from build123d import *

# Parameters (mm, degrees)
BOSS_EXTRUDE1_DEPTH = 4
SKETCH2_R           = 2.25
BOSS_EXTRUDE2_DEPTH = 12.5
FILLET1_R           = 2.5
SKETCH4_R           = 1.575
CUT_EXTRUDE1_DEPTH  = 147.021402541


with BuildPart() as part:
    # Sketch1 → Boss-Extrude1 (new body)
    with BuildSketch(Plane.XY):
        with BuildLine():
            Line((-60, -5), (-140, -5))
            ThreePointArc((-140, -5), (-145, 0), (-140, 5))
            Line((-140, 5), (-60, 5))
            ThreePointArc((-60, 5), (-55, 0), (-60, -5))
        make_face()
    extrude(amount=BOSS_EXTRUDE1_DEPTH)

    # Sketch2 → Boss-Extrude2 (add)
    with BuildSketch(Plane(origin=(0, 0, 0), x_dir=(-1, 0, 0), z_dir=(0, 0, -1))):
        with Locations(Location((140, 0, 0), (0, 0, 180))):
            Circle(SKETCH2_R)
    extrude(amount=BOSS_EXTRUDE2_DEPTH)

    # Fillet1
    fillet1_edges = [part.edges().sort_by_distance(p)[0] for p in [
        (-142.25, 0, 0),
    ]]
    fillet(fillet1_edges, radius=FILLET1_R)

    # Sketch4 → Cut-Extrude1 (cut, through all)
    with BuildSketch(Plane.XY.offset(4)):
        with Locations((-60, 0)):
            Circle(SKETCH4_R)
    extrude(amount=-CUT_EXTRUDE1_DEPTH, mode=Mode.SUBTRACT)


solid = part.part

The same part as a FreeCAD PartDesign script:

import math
import FreeCAD as App
import Part
import Sketcher


def edges_at(feature, points):
    """Names of the edges that pass closest to the given points."""
    edges = feature.Shape.Edges
    near = lambda p: min(range(len(edges)), key=lambda i: edges[i].distToShape(Part.Vertex(*p))[0])
    return sorted({f"Edge{near(p) + 1}" for p in points})

doc = App.newDocument("Part")
body = doc.addObject("PartDesign::Body", "Body")

# Sketch on XY plane
sketch1 = body.newObject("Sketcher::SketchObject", "Sketch")
sketch1.AttachmentSupport = (doc.getObject("XY_Plane"), [""])
sketch1.MapMode = "FlatFace"
sketch1.addGeometry(Part.LineSegment(App.Vector(-140, -5, 0), App.Vector(-60, -5, 0)), False)
sketch1.addGeometry(Part.ArcOfCircle(Part.Circle(App.Vector(-60, 0, 0), App.Vector(0, 0, 1), 5), math.radians(-90), math.radians(90)), False)
sketch1.addGeometry(Part.LineSegment(App.Vector(-60, 5, 0), App.Vector(-140, 5, 0)), False)
sketch1.addGeometry(Part.ArcOfCircle(Part.Circle(App.Vector(-140, 0, 0), App.Vector(0, 0, 1), 5), math.radians(90), math.radians(270)), False)
sketch1.addConstraint(Sketcher.Constraint("Tangent", 0, 2, 1, 1))
sketch1.addConstraint(Sketcher.Constraint("Tangent", 1, 2, 2, 1))
sketch1.addConstraint(Sketcher.Constraint("Tangent", 2, 2, 3, 1))
sketch1.addConstraint(Sketcher.Constraint("Tangent", 3, 2, 0, 1))
sketch1.addConstraint(Sketcher.Constraint("Horizontal", 0))
sketch1.addConstraint(Sketcher.Constraint("Horizontal", 2))
sketch1.addConstraint(Sketcher.Constraint("PointOnObject", 1, 3, -1))
sketch1.addConstraint(Sketcher.Constraint("Radius", 1, 5.0))
sketch1.addConstraint(Sketcher.Constraint("DistanceX", 0, 1, 0, 2, 80.0))
sketch1.addConstraint(Sketcher.Constraint("DistanceX", 1, 3, -1, 1, 60.0))
pad1 = body.newObject("PartDesign::Pad", "Pad")
pad1.Profile = sketch1
pad1.Length = 4

# Sketch on XY plane
sketch2 = body.newObject("Sketcher::SketchObject", "Sketch001")
sketch2.AttachmentSupport = (doc.getObject("XY_Plane"), [""])
sketch2.MapMode = "FlatFace"
sketch2.addGeometry(Part.Circle(App.Vector(-140, 0, 0), App.Vector(0, 0, 1), 2.25), False)
sketch2.addConstraint(Sketcher.Constraint("PointOnObject", 0, 3, -1))
sketch2.addConstraint(Sketcher.Constraint("Diameter", 0, 4.5))
sketch2.addConstraint(Sketcher.Constraint("DistanceX", 0, 3, -1, 1, 140.0))
pad2 = body.newObject("PartDesign::Pad", "Pad001")
pad2.Profile = sketch2
pad2.Length = 12.5
pad2.Reversed = True
doc.recompute()

fillet = body.newObject("PartDesign::Fillet", "Fillet")
fillet.Base = (pad2, edges_at(pad2, [(-142.25, 0, 0)]))
fillet.Radius = 2.5

# Sketch on XY plane
sketch3 = body.newObject("Sketcher::SketchObject", "Sketch002")
sketch3.AttachmentSupport = (doc.getObject("XY_Plane"), [""])
sketch3.MapMode = "FlatFace"
sketch3.AttachmentOffset = App.Placement(App.Vector(0, 0, 4), App.Rotation())
sketch3.addGeometry(Part.Circle(App.Vector(-60, 0, 0), App.Vector(0, 0, 1), 1.575), False)
sketch3.addConstraint(Sketcher.Constraint("PointOnObject", 0, 3, -1))
sketch3.addConstraint(Sketcher.Constraint("Diameter", 0, 3.15))
sketch3.addConstraint(Sketcher.Constraint("DistanceX", 0, 3, -1, 1, 60.0))
pocket1 = body.newObject("PartDesign::Pocket", "Pocket")
pocket1.Profile = sketch3
pocket1.Type = "ThroughAll"

doc.recompute()
